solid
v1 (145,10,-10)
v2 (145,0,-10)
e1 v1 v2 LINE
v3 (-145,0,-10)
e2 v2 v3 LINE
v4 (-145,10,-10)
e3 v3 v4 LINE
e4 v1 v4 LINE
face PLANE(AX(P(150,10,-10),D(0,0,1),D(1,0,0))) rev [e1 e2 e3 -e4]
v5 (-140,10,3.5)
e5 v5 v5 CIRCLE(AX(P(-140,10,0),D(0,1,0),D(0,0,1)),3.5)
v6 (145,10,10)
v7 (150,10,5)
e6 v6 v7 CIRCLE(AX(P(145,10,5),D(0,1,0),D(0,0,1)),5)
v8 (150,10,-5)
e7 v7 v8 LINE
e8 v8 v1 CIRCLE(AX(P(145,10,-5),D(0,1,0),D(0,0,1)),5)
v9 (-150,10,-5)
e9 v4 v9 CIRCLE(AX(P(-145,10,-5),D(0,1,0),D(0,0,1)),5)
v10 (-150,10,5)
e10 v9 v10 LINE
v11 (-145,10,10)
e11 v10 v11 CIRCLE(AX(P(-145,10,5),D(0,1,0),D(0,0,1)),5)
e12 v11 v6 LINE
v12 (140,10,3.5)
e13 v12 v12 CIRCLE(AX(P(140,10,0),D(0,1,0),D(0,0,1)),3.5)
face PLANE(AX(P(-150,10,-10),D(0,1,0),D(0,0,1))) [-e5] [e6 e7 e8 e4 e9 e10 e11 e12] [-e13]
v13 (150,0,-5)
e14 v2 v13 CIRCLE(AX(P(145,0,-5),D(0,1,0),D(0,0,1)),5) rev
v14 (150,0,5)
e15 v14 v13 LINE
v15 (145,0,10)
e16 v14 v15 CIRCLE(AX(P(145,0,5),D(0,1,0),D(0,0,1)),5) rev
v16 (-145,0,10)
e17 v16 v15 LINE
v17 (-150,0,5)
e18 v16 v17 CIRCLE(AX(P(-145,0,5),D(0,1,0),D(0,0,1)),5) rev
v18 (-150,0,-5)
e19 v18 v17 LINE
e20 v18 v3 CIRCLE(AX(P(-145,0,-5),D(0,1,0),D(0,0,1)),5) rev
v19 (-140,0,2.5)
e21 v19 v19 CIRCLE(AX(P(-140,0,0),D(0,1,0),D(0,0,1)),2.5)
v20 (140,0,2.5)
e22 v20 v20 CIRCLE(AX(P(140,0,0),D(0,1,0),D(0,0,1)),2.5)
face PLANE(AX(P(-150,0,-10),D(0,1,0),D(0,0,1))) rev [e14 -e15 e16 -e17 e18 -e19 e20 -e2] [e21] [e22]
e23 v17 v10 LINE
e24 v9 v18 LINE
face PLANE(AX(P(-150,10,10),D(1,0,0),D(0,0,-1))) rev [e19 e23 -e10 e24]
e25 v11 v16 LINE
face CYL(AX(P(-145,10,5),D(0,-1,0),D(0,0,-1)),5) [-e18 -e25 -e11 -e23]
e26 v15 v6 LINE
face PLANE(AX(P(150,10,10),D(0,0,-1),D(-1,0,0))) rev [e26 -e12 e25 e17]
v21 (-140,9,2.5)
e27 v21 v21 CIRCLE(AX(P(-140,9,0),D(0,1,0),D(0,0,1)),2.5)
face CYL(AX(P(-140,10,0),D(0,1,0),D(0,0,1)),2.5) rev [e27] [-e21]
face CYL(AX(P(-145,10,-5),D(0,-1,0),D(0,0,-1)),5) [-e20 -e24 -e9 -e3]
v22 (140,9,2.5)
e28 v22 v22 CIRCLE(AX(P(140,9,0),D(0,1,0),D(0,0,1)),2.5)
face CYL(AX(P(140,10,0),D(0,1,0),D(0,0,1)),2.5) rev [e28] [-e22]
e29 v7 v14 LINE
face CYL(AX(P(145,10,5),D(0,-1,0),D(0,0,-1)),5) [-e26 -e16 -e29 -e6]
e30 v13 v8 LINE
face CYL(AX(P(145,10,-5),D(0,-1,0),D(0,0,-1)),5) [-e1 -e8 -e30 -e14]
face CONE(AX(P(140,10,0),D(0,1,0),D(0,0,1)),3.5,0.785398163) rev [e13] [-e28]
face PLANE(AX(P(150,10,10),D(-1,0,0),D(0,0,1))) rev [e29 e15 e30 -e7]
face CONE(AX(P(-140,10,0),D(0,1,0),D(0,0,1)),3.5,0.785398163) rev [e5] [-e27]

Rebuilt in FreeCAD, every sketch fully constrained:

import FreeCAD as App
import Part
import Sketcher

V = App.Vector


def edges_at(feature, points):
    """Names of the edges that pass closest to the given points."""
    edges = feature.Shape.Edges
    near = lambda p: min(range(len(edges)), key=lambda i: edges[i].distToShape(Part.Vertex(*p))[0])
    return sorted({f"Edge{near(p) + 1}" for p in points})


def add_polygon(sketch, points):
    """Adds a closed chain of lines whose ends are joined by coincident constraints."""
    first, n = sketch.GeometryCount, len(points)
    for a, b in zip(points, points[1:] + points[:1]):
        sketch.addGeometry(Part.LineSegment(App.Vector(*a, 0), App.Vector(*b, 0)), False)
    for i in range(n):
        sketch.addConstraint(Sketcher.Constraint("Coincident", first + i, 2, first + (i + 1) % n, 1))

doc = App.newDocument("Part")
body = doc.addObject("PartDesign::Body", "Body")

sketch1 = body.newObject("Sketcher::SketchObject", "Sketch")
sketch1.AttachmentSupport = (doc.getObject("XZ_Plane"), [""])
sketch1.MapMode = "FlatFace"
add_polygon(sketch1, [(-150, -10), (-150, 10), (150, 10), (150, -10)])
sketch1.addConstraint(Sketcher.Constraint("Vertical", 0))
sketch1.addConstraint(Sketcher.Constraint("Horizontal", 1))
sketch1.addConstraint(Sketcher.Constraint("Vertical", 2))
sketch1.addConstraint(Sketcher.Constraint("Horizontal", 3))
sketch1.addConstraint(Sketcher.Constraint("Symmetric", 0, 2, 2, 2, -1, 1))
sketch1.addConstraint(Sketcher.Constraint("DistanceX", 1, 1, 1, 2, 300.0))
sketch1.addConstraint(Sketcher.Constraint("DistanceY", 0, 1, 0, 2, 20.0))
pad1 = body.newObject("PartDesign::Pad", "Pad")
pad1.Profile = sketch1
pad1.Length = 10
pad1.Reversed = True

sketch2 = body.newObject("Sketcher::SketchObject", "Sketch001")
sketch2.AttachmentSupport = (doc.getObject("XZ_Plane"), [""])
sketch2.MapMode = "FlatFace"
sketch2.AttachmentOffset = App.Placement(V(0, 0, -10), App.Rotation())
sketch2.addGeometry(Part.Circle(V(-140, 0, 0), V(0, 0, 1), 2.5), False)
sketch2.addGeometry(Part.Circle(V(140, 0, 0), V(0, 0, 1), 2.5), False)
sketch2.addConstraint(Sketcher.Constraint("Equal", 0, 1))
sketch2.addConstraint(Sketcher.Constraint("Symmetric", 0, 3, 1, 3, -1, 1))
sketch2.addConstraint(Sketcher.Constraint("PointOnObject", 0, 3, -1))
sketch2.addConstraint(Sketcher.Constraint("Diameter", 0, 5.0))
sketch2.addConstraint(Sketcher.Constraint("DistanceX", 0, 3, -1, 1, 140.0))
doc.recompute()
hole = body.newObject("PartDesign::Hole", "Hole")
hole.Profile = sketch2
hole.ThreadType = "None"
hole.Diameter = 5
hole.DepthType = "Dimension"
hole.Depth = 11
hole.DrillPoint = "Angled"
hole.DrillPointAngle = 118
hole.HoleCutType = "Countersink"
hole.HoleCutDiameter = 7
hole.HoleCutCountersinkAngle = 90
hole.Reversed = True
doc.recompute()

fillet = body.newObject("PartDesign::Fillet", "Fillet")
fillet.Base = (hole, edges_at(hole, [
    (-150, 5, -10),
    (150, 5, -10),
    (150, 5, 10),
    (-150, 5, 10),
]))
fillet.Radius = 5

doc.recompute()
